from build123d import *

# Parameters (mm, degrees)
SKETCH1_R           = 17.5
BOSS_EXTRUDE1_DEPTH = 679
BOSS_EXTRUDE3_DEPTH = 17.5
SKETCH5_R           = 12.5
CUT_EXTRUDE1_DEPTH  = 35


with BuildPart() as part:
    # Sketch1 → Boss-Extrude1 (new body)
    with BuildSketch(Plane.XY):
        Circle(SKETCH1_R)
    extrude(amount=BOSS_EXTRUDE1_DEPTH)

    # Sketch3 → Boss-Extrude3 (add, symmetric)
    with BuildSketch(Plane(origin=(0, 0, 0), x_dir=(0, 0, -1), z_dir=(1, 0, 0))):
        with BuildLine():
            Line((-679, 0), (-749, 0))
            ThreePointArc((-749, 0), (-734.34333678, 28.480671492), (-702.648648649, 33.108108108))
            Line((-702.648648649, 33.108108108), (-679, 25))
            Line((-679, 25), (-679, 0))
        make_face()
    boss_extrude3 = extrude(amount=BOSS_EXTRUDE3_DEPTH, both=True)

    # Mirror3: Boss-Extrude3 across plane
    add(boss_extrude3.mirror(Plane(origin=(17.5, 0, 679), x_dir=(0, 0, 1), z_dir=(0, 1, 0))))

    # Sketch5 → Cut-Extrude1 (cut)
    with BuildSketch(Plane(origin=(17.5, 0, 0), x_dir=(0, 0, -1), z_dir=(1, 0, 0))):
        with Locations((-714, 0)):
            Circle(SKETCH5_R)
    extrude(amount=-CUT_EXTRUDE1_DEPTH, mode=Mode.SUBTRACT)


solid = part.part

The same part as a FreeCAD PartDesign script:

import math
import FreeCAD as App
import Part
import Sketcher
from FreeCAD import Vector
Q = App.Units.Quantity

doc = App.newDocument("Part")
body = doc.addObject("PartDesign::Body", "Body")

sketch1 = body.newObject("Sketcher::SketchObject", "Sketch")
sketch1.AttachmentSupport = (doc.getObject("XY_Plane"), [""])
sketch1.MapMode = "FlatFace"
sketch1.addGeometry(Part.Circle(Vector(0, 0, 0), Vector(0, 0, 1), 18), False)
sketch1.addConstraint(Sketcher.Constraint("Coincident", 0, 3, -1, 1))
sketch1.addConstraint(Sketcher.Constraint("Diameter", 0, Q("35 mm")))
pad1 = body.newObject("PartDesign::Pad", "Pad")
pad1.Profile = sketch1
pad1.Length = 679

sketch2 = body.newObject("Sketcher::SketchObject", "Sketch001")
sketch2.AttachmentSupport = (doc.getObject("YZ_Plane"), [""])
sketch2.MapMode = "FlatFace"
sketch2.addGeometry(Part.LineSegment(Vector(0, 749, 0), Vector(0, 679, 0)), False)
sketch2.addGeometry(Part.LineSegment(Vector(0, 679, 0), Vector(25, 679, 0)), False)
sketch2.addGeometry(Part.LineSegment(Vector(25, 679, 0), Vector(33, 703, 0)), False)
sketch2.addGeometry(Part.ArcOfCircle(Part.Circle(Vector(0, 714, 0), Vector(0, 0, 1), 35), math.radians(-19), math.radians(90)), False)
sketch2.addConstraint(Sketcher.Constraint("Coincident", 0, 2, 1, 1))
sketch2.addConstraint(Sketcher.Constraint("Coincident", 1, 2, 2, 1))
sketch2.addConstraint(Sketcher.Constraint("Tangent", 2, 2, 3, 1))
sketch2.addConstraint(Sketcher.Constraint("Coincident", 3, 2, 0, 1))
sketch2.addConstraint(Sketcher.Constraint("Vertical", 0))
sketch2.addConstraint(Sketcher.Constraint("Horizontal", 1))
sketch2.addConstraint(Sketcher.Constraint("PointOnObject", 3, 3, -2))
sketch2.addConstraint(Sketcher.Constraint("PointOnObject", 0, 2, -2))
sketch2.addConstraint(Sketcher.Constraint("Radius", 3, Q("35 mm")))
sketch2.addConstraint(Sketcher.Constraint("DistanceX", 1, 1, 1, 2, Q("25 mm")))
sketch2.addConstraint(Sketcher.Constraint("DistanceY", 0, 2, 0, 1, Q("70 mm")))
sketch2.addConstraint(Sketcher.Constraint("DistanceY", -1, 1, 3, 3, Q("714 mm")))
pad2 = body.newObject("PartDesign::Pad", "Pad001")
pad2.Profile = sketch2
pad2.Length = 35
pad2.Midplane = True
doc.recompute()

mirrored = body.newObject("PartDesign::Mirrored", "Mirrored")
mirrored.Originals = [pad2]
mirrored.MirrorPlane = (doc.getObject("XZ_Plane"), [""])
body.Tip = mirrored

sketch3 = body.newObject("Sketcher::SketchObject", "Sketch002")
sketch3.AttachmentSupport = (doc.getObject("YZ_Plane"), [""])
sketch3.MapMode = "FlatFace"
sketch3.AttachmentOffset = App.Placement(Vector(0, 0, 17.5), App.Rotation())
sketch3.addGeometry(Part.Circle(Vector(0, 714, 0), Vector(0, 0, 1), 12), False)
sketch3.addConstraint(Sketcher.Constraint("PointOnObject", 0, 3, -2))
sketch3.addConstraint(Sketcher.Constraint("Diameter", 0, Q("25 mm")))
sketch3.addConstraint(Sketcher.Constraint("DistanceY", -1, 1, 0, 3, Q("714 mm")))
pocket1 = body.newObject("PartDesign::Pocket", "Pocket")
pocket1.Profile = sketch3
pocket1.Length = 35

doc.recompute()
